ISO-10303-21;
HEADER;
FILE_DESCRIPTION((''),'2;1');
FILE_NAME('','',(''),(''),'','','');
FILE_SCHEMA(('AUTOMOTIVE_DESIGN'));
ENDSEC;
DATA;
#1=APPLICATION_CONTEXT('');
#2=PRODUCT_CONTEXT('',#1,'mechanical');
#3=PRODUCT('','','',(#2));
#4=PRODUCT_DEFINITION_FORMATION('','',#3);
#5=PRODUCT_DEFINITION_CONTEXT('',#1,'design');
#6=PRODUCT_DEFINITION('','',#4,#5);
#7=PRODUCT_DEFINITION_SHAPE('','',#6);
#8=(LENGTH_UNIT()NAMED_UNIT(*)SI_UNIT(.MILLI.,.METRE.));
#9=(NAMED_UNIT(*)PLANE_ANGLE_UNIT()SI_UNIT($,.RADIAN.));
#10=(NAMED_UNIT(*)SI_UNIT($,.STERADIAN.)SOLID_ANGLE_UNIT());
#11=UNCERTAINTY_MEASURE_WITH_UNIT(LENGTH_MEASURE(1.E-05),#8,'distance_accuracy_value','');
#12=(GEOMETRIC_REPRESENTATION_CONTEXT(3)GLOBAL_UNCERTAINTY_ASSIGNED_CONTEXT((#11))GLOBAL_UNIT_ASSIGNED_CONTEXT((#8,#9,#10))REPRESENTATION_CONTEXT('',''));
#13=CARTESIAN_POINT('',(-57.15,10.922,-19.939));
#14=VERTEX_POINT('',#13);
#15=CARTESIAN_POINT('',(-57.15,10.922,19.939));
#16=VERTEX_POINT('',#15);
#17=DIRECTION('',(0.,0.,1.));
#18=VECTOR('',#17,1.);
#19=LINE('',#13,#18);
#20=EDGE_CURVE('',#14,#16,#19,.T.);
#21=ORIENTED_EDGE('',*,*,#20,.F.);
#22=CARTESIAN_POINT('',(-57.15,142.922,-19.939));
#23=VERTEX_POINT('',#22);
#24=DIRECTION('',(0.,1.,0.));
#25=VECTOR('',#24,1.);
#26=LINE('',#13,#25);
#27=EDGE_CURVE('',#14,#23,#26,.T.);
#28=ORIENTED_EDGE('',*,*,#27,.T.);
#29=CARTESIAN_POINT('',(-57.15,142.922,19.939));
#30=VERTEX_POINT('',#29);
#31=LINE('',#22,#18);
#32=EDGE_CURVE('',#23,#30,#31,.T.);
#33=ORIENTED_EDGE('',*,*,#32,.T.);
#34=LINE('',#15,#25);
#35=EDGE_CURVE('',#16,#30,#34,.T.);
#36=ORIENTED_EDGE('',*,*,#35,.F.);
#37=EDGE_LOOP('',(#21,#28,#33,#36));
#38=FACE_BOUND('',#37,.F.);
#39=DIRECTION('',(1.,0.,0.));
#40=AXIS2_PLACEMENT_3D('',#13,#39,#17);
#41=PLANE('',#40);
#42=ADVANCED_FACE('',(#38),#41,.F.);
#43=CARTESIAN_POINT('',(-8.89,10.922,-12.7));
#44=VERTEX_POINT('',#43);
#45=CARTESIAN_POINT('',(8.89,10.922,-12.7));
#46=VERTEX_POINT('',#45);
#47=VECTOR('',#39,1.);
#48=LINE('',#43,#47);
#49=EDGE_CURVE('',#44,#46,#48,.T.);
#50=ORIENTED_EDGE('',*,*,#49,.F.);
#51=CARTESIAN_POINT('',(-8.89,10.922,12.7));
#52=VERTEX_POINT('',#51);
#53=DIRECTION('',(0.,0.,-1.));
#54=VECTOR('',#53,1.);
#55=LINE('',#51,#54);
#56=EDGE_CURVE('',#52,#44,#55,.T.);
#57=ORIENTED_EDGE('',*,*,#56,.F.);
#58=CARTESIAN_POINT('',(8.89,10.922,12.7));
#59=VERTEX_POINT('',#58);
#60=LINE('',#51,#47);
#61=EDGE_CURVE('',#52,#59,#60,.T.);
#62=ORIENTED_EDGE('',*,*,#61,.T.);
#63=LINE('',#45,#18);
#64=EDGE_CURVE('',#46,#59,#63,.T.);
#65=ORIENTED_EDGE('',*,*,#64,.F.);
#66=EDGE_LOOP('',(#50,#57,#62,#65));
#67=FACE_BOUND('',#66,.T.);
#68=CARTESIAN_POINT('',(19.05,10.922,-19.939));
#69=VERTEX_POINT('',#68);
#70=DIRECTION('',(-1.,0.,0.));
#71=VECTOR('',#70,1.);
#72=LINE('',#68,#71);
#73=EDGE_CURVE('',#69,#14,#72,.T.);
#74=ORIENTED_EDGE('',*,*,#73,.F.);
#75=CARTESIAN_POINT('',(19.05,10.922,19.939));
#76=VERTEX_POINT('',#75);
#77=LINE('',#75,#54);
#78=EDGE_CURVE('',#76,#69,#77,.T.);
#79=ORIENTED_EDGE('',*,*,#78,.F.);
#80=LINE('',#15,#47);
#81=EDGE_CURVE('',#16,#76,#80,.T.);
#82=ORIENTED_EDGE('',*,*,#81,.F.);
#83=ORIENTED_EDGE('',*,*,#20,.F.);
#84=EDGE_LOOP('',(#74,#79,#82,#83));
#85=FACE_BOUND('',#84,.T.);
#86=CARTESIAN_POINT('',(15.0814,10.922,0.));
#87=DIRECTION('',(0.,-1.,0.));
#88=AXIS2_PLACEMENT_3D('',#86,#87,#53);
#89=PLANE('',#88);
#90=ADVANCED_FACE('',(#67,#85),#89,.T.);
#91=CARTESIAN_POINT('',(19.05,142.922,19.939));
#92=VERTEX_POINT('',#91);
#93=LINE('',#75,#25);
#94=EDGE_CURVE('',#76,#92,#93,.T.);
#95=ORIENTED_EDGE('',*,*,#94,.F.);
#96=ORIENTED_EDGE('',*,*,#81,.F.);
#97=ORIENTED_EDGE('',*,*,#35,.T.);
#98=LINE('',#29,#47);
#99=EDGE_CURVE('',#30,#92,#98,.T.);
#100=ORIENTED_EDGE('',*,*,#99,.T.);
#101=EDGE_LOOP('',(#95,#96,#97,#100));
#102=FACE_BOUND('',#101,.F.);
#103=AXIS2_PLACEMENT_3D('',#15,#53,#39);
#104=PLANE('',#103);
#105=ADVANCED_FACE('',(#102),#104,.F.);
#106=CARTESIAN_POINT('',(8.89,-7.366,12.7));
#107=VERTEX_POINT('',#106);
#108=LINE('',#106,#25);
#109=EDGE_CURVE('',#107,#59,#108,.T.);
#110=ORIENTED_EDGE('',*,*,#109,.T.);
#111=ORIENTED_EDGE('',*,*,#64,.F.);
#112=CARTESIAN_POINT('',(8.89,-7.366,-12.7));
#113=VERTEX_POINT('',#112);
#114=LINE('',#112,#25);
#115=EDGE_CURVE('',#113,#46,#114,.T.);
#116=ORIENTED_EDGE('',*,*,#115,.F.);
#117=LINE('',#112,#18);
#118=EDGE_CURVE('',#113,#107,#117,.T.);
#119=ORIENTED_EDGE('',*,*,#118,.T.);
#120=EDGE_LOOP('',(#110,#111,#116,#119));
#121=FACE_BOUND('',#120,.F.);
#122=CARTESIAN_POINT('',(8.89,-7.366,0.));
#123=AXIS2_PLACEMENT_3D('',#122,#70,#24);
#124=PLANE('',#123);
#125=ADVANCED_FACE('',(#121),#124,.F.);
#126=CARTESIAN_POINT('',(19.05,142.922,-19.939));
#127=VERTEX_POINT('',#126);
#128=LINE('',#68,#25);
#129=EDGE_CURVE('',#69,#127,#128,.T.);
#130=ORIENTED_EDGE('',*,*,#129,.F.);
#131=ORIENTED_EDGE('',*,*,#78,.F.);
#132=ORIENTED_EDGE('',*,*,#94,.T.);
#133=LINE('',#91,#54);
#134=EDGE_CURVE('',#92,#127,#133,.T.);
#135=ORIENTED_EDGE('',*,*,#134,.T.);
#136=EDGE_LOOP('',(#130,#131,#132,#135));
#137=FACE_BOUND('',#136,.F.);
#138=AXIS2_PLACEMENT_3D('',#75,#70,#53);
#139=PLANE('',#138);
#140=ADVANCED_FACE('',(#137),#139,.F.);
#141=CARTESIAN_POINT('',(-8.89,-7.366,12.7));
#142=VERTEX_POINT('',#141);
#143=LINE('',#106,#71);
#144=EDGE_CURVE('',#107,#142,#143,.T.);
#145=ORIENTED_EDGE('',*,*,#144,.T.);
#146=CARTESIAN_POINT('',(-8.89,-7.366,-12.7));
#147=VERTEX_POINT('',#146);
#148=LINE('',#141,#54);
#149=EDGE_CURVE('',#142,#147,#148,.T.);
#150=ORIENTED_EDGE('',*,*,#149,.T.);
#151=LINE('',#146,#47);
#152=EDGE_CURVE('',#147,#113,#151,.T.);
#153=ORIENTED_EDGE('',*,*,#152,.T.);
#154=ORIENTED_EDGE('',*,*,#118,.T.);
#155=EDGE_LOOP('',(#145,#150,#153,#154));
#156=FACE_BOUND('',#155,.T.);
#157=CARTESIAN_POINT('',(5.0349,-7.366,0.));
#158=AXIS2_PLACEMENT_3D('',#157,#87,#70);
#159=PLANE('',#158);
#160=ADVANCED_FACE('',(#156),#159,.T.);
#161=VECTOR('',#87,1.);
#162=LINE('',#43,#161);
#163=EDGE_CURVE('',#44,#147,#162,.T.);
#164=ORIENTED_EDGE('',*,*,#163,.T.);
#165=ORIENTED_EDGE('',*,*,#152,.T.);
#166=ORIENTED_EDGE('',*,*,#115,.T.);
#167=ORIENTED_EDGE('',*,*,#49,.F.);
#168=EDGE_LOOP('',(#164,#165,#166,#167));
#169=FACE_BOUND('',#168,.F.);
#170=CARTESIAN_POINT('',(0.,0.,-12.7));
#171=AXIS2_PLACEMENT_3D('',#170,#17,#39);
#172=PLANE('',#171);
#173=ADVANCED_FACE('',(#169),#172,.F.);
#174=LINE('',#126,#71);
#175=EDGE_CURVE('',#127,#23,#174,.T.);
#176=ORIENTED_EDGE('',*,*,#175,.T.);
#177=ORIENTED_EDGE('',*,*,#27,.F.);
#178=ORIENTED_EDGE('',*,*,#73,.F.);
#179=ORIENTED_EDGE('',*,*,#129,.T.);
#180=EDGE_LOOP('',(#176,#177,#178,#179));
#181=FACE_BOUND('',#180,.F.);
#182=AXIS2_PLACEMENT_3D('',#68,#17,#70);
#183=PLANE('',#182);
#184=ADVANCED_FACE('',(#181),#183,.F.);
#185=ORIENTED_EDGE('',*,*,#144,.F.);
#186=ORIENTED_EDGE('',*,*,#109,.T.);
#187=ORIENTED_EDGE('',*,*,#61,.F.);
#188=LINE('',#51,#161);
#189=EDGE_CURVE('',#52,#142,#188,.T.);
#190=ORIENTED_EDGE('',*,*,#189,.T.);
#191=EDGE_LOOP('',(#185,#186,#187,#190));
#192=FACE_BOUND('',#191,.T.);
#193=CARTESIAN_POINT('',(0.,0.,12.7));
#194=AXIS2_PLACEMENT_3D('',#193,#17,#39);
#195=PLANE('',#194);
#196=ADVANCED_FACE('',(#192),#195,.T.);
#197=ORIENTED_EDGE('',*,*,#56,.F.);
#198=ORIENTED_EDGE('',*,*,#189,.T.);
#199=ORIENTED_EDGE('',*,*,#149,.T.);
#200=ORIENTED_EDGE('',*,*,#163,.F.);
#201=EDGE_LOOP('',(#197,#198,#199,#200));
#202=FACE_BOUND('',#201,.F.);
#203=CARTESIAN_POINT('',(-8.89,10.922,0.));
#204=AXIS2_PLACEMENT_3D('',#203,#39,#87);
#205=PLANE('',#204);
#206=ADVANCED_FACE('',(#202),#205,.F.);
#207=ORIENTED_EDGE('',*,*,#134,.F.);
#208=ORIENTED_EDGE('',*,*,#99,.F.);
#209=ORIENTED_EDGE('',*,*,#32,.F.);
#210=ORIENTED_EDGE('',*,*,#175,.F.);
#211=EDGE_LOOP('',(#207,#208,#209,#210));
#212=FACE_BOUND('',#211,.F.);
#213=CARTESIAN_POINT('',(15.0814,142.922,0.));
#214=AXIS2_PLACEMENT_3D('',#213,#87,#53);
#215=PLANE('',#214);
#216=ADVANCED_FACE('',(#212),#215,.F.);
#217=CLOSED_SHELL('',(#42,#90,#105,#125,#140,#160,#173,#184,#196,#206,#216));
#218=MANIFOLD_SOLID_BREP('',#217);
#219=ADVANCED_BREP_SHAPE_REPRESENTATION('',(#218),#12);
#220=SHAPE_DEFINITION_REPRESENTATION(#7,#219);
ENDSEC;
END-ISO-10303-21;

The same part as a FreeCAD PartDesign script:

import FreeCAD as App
import Part
import Sketcher

V = App.Vector
Q = App.Units.Quantity


def add_polygon(sketch, points):
    """Adds a closed chain of lines whose ends are joined by coincident constraints."""
    first, n = sketch.GeometryCount, len(points)
    for a, b in zip(points, points[1:] + points[:1]):
        sketch.addGeometry(Part.LineSegment(App.Vector(*a, 0), App.Vector(*b, 0)), False)
    for i in range(n):
        sketch.addConstraint(Sketcher.Constraint("Coincident", first + i, 2, first + (i + 1) % n, 1))

doc = App.newDocument("Part")
params = doc.addObject("Spreadsheet::Sheet", "Params")
for row, (alias, value) in enumerate([
    ("sketch1_width", "0.7 in"),
    ("sketch1_height", "0.72 in"),
    ("pad1_length", "1 in"),
    ("sketch2_width", "3 in"),
    ("sketch2_height", "1.57 in"),
    ("pad2_length", "132 mm"),
], start=1):
    params.set(f"A{row}", alias)
    params.set(f"B{row}", "=" + value)
    params.setAlias(f"B{row}", alias)

body = doc.addObject("PartDesign::Body", "Body")

sketch1 = body.newObject("Sketcher::SketchObject", "Sketch")
sketch1.AttachmentSupport = (doc.getObject("XY_Plane"), [""])
sketch1.MapMode = "FlatFace"
add_polygon(sketch1, [(8.89, -7.366), (8.89, 10.922), (-8.89, 10.922), (-8.89, -7.366)])
sketch1.addConstraint([
    Sketcher.Constraint("Vertical", 0),
    Sketcher.Constraint("Horizontal", 1),
    Sketcher.Constraint("Vertical", 2),
    Sketcher.Constraint("Horizontal", 3),
    Sketcher.Constraint("DistanceX", 1, 2, 1, 1, Q("0.7 in")),
    Sketcher.Constraint("DistanceY", 0, 1, 0, 2, Q("0.72 in")),
    Sketcher.Constraint("DistanceX", -1, 1, 0, 2, Q("0.35 in")),
    Sketcher.Constraint("DistanceY", -1, 1, 0, 2, Q("0.43 in")),
])
sketch1.setExpression("Constraints[8]", "Params.sketch1_width")
sketch1.setExpression("Constraints[9]", "Params.sketch1_height")
pad1 = body.newObject("PartDesign::Pad", "Pad")
pad1.Profile = sketch1
pad1.setExpression("Length", "Params.pad1_length")
pad1.Midplane = True

sketch2 = body.newObject("Sketcher::SketchObject", "Sketch001")
sketch2.AttachmentSupport = (doc.getObject("XZ_Plane"), [""])
sketch2.MapMode = "FlatFace"
sketch2.AttachmentOffset = App.Placement(V(0, 0, -0.43 * 25.4), App.Rotation())
add_polygon(sketch2, [(19.05, -19.939), (19.05, 19.939), (-57.15, 19.939), (-57.15, -19.939)])
sketch2.addConstraint([
    Sketcher.Constraint("Vertical", 0),
    Sketcher.Constraint("Horizontal", 1),
    Sketcher.Constraint("Vertical", 2),
    Sketcher.Constraint("Horizontal", 3),
    Sketcher.Constraint("DistanceX", 1, 2, 1, 1, Q("3 in")),
    Sketcher.Constraint("DistanceY", 0, 1, 0, 2, Q("1.57 in")),
    Sketcher.Constraint("DistanceX", -1, 1, 0, 2, Q("0.75 in")),
    Sketcher.Constraint("DistanceY", -1, 1, 0, 2, Q("0.785 in")),
])
sketch2.setExpression("Constraints[8]", "Params.sketch2_width")
sketch2.setExpression("Constraints[9]", "Params.sketch2_height")
pad2 = body.newObject("PartDesign::Pad", "Pad001")
pad2.Profile = sketch2
pad2.setExpression("Length", "Params.pad2_length")
pad2.Reversed = True

doc.recompute()
